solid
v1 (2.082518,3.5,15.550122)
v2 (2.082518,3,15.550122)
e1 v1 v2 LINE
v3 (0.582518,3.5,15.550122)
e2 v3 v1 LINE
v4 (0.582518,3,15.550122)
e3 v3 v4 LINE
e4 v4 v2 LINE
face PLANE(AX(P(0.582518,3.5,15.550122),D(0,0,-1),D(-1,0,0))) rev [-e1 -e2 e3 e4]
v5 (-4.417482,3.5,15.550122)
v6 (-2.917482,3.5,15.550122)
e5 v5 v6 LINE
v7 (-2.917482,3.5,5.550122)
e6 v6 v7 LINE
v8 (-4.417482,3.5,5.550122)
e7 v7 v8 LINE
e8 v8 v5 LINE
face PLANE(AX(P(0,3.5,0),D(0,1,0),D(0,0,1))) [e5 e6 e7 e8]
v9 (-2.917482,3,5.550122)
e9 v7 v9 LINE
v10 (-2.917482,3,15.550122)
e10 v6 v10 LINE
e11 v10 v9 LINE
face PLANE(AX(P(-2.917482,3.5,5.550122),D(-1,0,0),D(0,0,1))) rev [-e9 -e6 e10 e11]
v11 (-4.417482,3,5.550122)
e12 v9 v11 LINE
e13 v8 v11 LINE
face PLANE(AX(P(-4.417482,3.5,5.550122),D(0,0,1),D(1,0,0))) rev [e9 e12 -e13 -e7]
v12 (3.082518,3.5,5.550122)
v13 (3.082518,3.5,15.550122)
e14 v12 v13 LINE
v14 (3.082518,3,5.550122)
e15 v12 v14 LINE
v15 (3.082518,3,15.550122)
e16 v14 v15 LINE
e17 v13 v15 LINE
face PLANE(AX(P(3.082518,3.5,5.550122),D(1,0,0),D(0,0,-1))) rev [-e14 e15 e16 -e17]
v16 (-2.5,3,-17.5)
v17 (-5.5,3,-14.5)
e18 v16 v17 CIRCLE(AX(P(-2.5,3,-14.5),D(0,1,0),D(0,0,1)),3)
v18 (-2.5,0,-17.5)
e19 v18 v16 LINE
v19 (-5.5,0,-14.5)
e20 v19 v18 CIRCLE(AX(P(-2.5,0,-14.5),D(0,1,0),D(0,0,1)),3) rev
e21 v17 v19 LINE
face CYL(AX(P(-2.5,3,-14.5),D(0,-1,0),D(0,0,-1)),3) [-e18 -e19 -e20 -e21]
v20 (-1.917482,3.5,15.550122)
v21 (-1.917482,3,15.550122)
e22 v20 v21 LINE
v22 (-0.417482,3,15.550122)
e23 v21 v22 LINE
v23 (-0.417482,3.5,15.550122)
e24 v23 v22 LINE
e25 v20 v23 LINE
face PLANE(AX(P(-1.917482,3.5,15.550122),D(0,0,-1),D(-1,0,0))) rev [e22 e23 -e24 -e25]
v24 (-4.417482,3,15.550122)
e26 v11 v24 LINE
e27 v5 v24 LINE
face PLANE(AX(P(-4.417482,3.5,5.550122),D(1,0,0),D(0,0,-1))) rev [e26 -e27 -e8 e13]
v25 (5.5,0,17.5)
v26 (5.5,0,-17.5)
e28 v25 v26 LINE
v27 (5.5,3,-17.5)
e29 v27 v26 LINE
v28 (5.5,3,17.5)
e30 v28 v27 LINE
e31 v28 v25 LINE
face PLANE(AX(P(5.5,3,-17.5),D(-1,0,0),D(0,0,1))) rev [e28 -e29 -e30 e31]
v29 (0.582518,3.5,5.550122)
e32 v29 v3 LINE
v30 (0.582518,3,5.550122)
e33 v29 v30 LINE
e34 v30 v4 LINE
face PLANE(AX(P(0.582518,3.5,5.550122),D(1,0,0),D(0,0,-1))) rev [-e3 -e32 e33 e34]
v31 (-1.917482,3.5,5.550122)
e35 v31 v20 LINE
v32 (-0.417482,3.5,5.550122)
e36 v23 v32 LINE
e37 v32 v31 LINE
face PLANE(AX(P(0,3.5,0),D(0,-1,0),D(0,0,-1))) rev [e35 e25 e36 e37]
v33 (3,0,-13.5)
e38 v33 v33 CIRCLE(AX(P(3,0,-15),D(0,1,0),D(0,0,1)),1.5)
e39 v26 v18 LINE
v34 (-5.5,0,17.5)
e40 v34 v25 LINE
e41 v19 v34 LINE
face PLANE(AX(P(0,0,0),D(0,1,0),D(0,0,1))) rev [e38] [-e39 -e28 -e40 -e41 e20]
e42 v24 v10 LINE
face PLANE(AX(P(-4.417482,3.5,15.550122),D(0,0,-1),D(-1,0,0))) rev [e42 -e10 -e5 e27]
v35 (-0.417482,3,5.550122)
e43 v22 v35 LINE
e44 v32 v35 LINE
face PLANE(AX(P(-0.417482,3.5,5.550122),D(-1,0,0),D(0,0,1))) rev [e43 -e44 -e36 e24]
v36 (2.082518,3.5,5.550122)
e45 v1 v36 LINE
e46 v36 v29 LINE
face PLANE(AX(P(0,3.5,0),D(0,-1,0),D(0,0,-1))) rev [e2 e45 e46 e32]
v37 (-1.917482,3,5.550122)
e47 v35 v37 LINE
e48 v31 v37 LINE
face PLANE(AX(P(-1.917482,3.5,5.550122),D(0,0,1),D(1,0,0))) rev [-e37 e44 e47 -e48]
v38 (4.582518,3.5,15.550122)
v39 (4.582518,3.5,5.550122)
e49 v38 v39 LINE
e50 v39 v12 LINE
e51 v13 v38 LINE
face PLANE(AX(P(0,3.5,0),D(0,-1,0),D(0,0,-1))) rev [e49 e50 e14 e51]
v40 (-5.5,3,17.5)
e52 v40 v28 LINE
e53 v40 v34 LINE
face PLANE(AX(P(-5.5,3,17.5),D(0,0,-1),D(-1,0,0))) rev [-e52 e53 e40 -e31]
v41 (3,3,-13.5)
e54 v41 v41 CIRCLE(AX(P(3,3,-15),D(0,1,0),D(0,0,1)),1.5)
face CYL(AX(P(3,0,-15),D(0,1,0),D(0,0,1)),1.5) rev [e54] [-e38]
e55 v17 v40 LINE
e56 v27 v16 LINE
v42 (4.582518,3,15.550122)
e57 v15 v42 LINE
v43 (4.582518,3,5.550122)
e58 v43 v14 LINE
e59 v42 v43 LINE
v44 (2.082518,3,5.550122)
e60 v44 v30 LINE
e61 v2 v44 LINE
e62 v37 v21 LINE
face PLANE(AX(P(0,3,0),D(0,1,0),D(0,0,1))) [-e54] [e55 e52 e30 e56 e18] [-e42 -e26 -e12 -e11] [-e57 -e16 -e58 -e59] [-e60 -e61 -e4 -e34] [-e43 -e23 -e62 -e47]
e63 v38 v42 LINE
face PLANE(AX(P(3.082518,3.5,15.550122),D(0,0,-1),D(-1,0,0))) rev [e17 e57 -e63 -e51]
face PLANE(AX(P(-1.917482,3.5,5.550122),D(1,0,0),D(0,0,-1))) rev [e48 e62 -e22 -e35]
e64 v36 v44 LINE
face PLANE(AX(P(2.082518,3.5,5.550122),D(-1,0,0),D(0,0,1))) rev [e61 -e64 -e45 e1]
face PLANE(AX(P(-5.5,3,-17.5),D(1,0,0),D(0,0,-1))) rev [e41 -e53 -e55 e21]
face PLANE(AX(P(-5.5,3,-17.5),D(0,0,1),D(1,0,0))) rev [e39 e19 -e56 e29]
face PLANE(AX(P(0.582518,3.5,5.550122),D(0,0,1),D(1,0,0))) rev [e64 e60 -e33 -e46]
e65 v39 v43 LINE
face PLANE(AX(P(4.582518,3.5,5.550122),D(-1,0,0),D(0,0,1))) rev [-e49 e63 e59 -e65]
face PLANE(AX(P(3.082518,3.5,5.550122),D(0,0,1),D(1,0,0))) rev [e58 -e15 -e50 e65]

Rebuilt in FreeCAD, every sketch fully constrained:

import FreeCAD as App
import Part
import Sketcher

V = App.Vector


def edges_at(feature, points):
    """Names of the edges that pass closest to the given points."""
    edges = feature.Shape.Edges
    near = lambda p: min(range(len(edges)), key=lambda i: edges[i].distToShape(Part.Vertex(*p))[0])
    return sorted({f"Edge{near(p) + 1}" for p in points})

doc = App.newDocument("Part")
body = doc.addObject("PartDesign::Body", "Body")

sketch1 = body.newObject("Sketcher::SketchObject", "Sketch")
sketch1.AttachmentSupport = (doc.getObject("XZ_Plane"), [""])
sketch1.MapMode = "FlatFace"
sketch1.addGeometry([
    Part.LineSegment(V(-6, -18, 0), V(-6, 18, 0)),
    Part.LineSegment(V(-6, 18, 0), V(6, 18, 0)),
    Part.LineSegment(V(6, 18, 0), V(6, -18, 0)),
    Part.LineSegment(V(6, -18, 0), V(-6, -18, 0)),
], False)
sketch1.addConstraint([
    Sketcher.Constraint("Coincident", 0, 2, 1, 1),
    Sketcher.Constraint("Coincident", 1, 2, 2, 1),
    Sketcher.Constraint("Coincident", 2, 2, 3, 1),
    Sketcher.Constraint("Coincident", 3, 2, 0, 1),
    Sketcher.Constraint("Vertical", 0),
    Sketcher.Constraint("Horizontal", 1),
    Sketcher.Constraint("Vertical", 2),
    Sketcher.Constraint("Horizontal", 3),
    Sketcher.Constraint("Symmetric", 0, 2, 2, 2, -1, 1),
    Sketcher.Constraint("DistanceX", 1, 1, 1, 2, 11.0),
    Sketcher.Constraint("DistanceY", 0, 1, 0, 2, 35.0),
])
pad1 = body.newObject("PartDesign::Pad", "Pad")
pad1.Profile = sketch1
pad1.Length = 3
pad1.Reversed = True

sketch2 = body.newObject("Sketcher::SketchObject", "Sketch001")
sketch2.AttachmentSupport = (doc.getObject("XZ_Plane"), [""])
sketch2.MapMode = "FlatFace"
sketch2.AttachmentOffset = App.Placement(V(0, 0, -3), App.Rotation())
sketch2.addGeometry(Part.Circle(V(3, -15, 0), V(0, 0, 1), 1.5), False)
sketch2.addConstraint([
    Sketcher.Constraint("Diameter", 0, 3.0),
    Sketcher.Constraint("DistanceX", -1, 1, 0, 3, 3.0),
    Sketcher.Constraint("DistanceY", 0, 3, -1, 1, 15.0),
])
pocket1 = body.newObject("PartDesign::Pocket", "Pocket")
pocket1.Profile = sketch2
pocket1.Length = 3
pocket1.Reversed = True
doc.recompute()

fillet = body.newObject("PartDesign::Fillet", "Fillet")
fillet.Base = (pocket1, edges_at(pocket1, [(-5.5, 1.5, -17.5)]))
fillet.Radius = 3

sketch3 = body.newObject("Sketcher::SketchObject", "Sketch002")
sketch3.AttachmentSupport = (doc.getObject("XZ_Plane"), [""])
sketch3.MapMode = "FlatFace"
sketch3.AttachmentOffset = App.Placement(V(0, 0, -3), App.Rotation())
sketch3.addGeometry([
    Part.LineSegment(V(-1.9, 5.6, 0), V(-1.9, 15.6, 0)),
    Part.LineSegment(V(-1.9, 15.6, 0), V(-0.4, 15.6, 0)),
    Part.LineSegment(V(-0.4, 15.6, 0), V(-0.4, 5.6, 0)),
    Part.LineSegment(V(-0.4, 5.6, 0), V(-1.9, 5.6, 0)),
    Part.LineSegment(V(-4.4, 5.6, 0), V(-4.4, 15.6, 0)),
    Part.LineSegment(V(-4.4, 15.6, 0), V(-2.9, 15.6, 0)),
    Part.LineSegment(V(-2.9, 15.6, 0), V(-2.9, 5.6, 0)),
    Part.LineSegment(V(-2.9, 5.6, 0), V(-4.4, 5.6, 0)),
    Part.LineSegment(V(0.6, 5.6, 0), V(0.6, 15.6, 0)),
    Part.LineSegment(V(0.6, 15.6, 0), V(2.1, 15.6, 0)),
    Part.LineSegment(V(2.1, 15.6, 0), V(2.1, 5.6, 0)),
    Part.LineSegment(V(2.1, 5.6, 0), V(0.6, 5.6, 0)),
    Part.LineSegment(V(3.1, 5.6, 0), V(3.1, 15.6, 0)),
    Part.LineSegment(V(3.1, 15.6, 0), V(4.6, 15.6, 0)),
    Part.LineSegment(V(4.6, 15.6, 0), V(4.6, 5.6, 0)),
    Part.LineSegment(V(4.6, 5.6, 0), V(3.1, 5.6, 0)),
], False)
sketch3.addConstraint([
    Sketcher.Constraint("Coincident", 0, 2, 1, 1),
    Sketcher.Constraint("Coincident", 1, 2, 2, 1),
    Sketcher.Constraint("Coincident", 2, 2, 3, 1),
    Sketcher.Constraint("Coincident", 3, 2, 0, 1),
    Sketcher.Constraint("Coincident", 4, 2, 5, 1),
    Sketcher.Constraint("Coincident", 5, 2, 6, 1),
    Sketcher.Constraint("Coincident", 6, 2, 7, 1),
    Sketcher.Constraint("Coincident", 7, 2, 4, 1),
    Sketcher.Constraint("Coincident", 8, 2, 9, 1),
    Sketcher.Constraint("Coincident", 9, 2, 10, 1),
    Sketcher.Constraint("Coincident", 10, 2, 11, 1),
    Sketcher.Constraint("Coincident", 11, 2, 8, 1),
    Sketcher.Constraint("Coincident", 12, 2, 13, 1),
    Sketcher.Constraint("Coincident", 13, 2, 14, 1),
    Sketcher.Constraint("Coincident", 14, 2, 15, 1),
    Sketcher.Constraint("Coincident", 15, 2, 12, 1),
    Sketcher.Constraint("Vertical", 0),
    Sketcher.Constraint("Horizontal", 1),
    Sketcher.Constraint("Vertical", 2),
    Sketcher.Constraint("Horizontal", 3),
    Sketcher.Constraint("Vertical", 4),
    Sketcher.Constraint("Horizontal", 5),
    Sketcher.Constraint("Vertical", 6),
    Sketcher.Constraint("Horizontal", 7),
    Sketcher.Constraint("Vertical", 8),
    Sketcher.Constraint("Horizontal", 9),
    Sketcher.Constraint("Vertical", 10),
    Sketcher.Constraint("Horizontal", 11),
    Sketcher.Constraint("Vertical", 12),
    Sketcher.Constraint("Horizontal", 13),
    Sketcher.Constraint("Vertical", 14),
    Sketcher.Constraint("Horizontal", 15),
    Sketcher.Constraint("Horizontal", 1, 2, 4, 2),
    Sketcher.Constraint("Horizontal", 3, 2, 6, 2),
    Sketcher.Constraint("Horizontal", 5, 2, 8, 2),
    Sketcher.Constraint("Horizontal", 7, 2, 10, 2),
    Sketcher.Constraint("Horizontal", 9, 2, 12, 2),
    Sketcher.Constraint("Horizontal", 11, 2, 14, 2),
    Sketcher.Constraint("Equal", 3, 5),
    Sketcher.Constraint("Equal", 7, 9),
    Sketcher.Constraint("Equal", 11, 13),
    Sketcher.Constraint("DistanceY", 0, 1, 0, 2, 10.0),
    Sketcher.Constraint("DistanceX", 1, 1, 1, 2, 1.5),
    Sketcher.Constraint("DistanceX", 4, 2, 1, 2, 4.0),
    Sketcher.Constraint("DistanceX", 1, 2, 8, 2, 1.0),
    Sketcher.Constraint("DistanceX", 9, 2, 12, 2, 1.0),
    Sketcher.Constraint("DistanceX", 0, 2, -1, 1, 1.917482),
    Sketcher.Constraint("DistanceY", -1, 1, 0, 2, 15.550122),
])
pad2 = body.newObject("PartDesign::Pad", "Pad001")
pad2.Profile = sketch3
pad2.Length = 0.5
pad2.Reversed = True

doc.recompute()
